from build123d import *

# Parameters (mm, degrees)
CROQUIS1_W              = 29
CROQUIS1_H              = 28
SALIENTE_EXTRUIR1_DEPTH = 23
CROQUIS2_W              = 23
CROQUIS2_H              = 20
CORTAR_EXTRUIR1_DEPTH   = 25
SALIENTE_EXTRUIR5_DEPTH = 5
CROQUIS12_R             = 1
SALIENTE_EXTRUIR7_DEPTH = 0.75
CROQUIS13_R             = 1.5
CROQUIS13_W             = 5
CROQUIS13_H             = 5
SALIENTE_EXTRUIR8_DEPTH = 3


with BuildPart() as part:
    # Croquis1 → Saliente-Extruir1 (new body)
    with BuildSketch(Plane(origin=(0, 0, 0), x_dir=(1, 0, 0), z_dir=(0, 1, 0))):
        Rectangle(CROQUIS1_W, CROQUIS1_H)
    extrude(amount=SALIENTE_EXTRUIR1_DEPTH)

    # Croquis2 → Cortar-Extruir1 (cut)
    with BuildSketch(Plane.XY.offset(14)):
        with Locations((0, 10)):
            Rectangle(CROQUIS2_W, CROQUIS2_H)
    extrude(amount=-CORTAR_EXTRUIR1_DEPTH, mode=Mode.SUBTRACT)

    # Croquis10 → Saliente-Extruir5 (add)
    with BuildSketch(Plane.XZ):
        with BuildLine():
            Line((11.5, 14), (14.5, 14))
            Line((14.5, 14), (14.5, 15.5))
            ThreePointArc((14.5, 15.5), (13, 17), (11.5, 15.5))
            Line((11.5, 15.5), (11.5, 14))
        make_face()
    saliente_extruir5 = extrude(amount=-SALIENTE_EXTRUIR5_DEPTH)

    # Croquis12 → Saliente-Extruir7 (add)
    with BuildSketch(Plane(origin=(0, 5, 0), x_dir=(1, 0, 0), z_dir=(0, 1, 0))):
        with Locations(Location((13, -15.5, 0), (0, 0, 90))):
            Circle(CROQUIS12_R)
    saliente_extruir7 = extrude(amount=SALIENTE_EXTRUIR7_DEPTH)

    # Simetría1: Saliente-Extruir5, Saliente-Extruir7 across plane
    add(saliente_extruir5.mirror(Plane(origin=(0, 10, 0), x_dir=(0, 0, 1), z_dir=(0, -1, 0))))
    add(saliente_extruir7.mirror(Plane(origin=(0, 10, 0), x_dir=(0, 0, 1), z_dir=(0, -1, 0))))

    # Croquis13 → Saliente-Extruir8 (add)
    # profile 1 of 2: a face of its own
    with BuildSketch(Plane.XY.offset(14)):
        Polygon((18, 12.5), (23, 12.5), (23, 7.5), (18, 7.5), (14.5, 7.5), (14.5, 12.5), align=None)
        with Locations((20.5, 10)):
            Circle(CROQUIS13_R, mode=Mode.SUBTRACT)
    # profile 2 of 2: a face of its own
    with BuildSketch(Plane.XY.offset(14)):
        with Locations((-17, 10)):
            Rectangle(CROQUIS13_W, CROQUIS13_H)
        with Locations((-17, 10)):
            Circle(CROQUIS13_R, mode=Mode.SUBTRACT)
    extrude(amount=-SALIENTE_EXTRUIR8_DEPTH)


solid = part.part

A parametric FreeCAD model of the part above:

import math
import FreeCAD as App
import Part
import Sketcher


def add_polygon(sketch, points):
    """Adds a closed chain of lines whose ends are joined by coincident constraints."""
    first, n = sketch.GeometryCount, len(points)
    for a, b in zip(points, points[1:] + points[:1]):
        sketch.addGeometry(Part.LineSegment(App.Vector(*a, 0), App.Vector(*b, 0)), False)
    for i in range(n):
        sketch.addConstraint(Sketcher.Constraint("Coincident", first + i, 2, first + (i + 1) % n, 1))

doc = App.newDocument("Part")
params = doc.addObject("Spreadsheet::Sheet", "Params")
for row, (alias, value) in enumerate([
    ("sketch1_width", "29 mm"),
    ("sketch1_height", "28 mm"),
    ("pad1_length", "23 mm"),
    ("sketch2_width", "23 mm"),
    ("sketch2_height", "20 mm"),
    ("pocket1_length", "25 mm"),
    ("sketch3_radius", "1.5 mm"),
    ("sketch3_height", "1.5 mm"),
    ("pad2_length", "5 mm"),
    ("sketch4_diameter", "2 mm"),
    ("pad3_length", "0.75 mm"),
    ("sketch5_diameter", "3 mm"),
    ("sketch5_width", "5 mm"),
    ("sketch5_width2", "8.5 mm"),
    ("pad4_length", "3 mm"),
], start=1):
    params.set(f"A{row}", alias)
    params.set(f"B{row}", "=" + value)
    params.setAlias(f"B{row}", alias)

body = doc.addObject("PartDesign::Body", "Body")

sketch1 = doc.addObject("Sketcher::SketchObject", "Sketch")
body.addObject(sketch1)
sketch1.AttachmentSupport = (doc.XZ_Plane, [""])
sketch1.MapMode = "FlatFace"
add_polygon(sketch1, [(-14, -14), (-14, 14), (14, 14), (14, -14)])
sketch1.addConstraint([
    Sketcher.Constraint("Vertical", 0),
    Sketcher.Constraint("Horizontal", 1),
    Sketcher.Constraint("Vertical", 2),
    Sketcher.Constraint("Horizontal", 3),
    Sketcher.Constraint("Symmetric", 0, 2, 2, 2, -1, 1),
    Sketcher.Constraint("DistanceX", 1, 1, 1, 2, 29.0),
    Sketcher.Constraint("DistanceY", 0, 1, 0, 2, 28.0),
])
sketch1.setExpression("Constraints[9]", "Params.sketch1_width")
sketch1.setExpression("Constraints[10]", "Params.sketch1_height")
pad1 = doc.addObject("PartDesign::Pad", "Pad")
body.addObject(pad1)
pad1.Profile = sketch1
pad1.setExpression("Length", "Params.pad1_length")
pad1.Reversed = True

sketch2 = doc.addObject("Sketcher::SketchObject", "Sketch001")
body.addObject(sketch2)
sketch2.AttachmentSupport = (doc.XY_Plane, [""])
sketch2.MapMode = "FlatFace"
sketch2.AttachmentOffset = App.Placement(App.Vector(0, 0, 14), App.Rotation())
add_polygon(sketch2, [(-12, 20), (-12, 0), (12, 0), (12, 20)])
sketch2.addConstraint([
    Sketcher.Constraint("Vertical", 0),
    Sketcher.Constraint("Horizontal", 1),
    Sketcher.Constraint("Vertical", 2),
    Sketcher.Constraint("Horizontal", 3),
    Sketcher.Constraint("Symmetric", 0, 2, 1, 2, -1, 1),
    Sketcher.Constraint("DistanceX", 1, 1, 1, 2, 23.0),
    Sketcher.Constraint("DistanceY", 0, 2, 0, 1, 20.0),
])
sketch2.setExpression("Constraints[9]", "Params.sketch2_width")
sketch2.setExpression("Constraints[10]", "Params.sketch2_height")
pocket1 = doc.addObject("PartDesign::Pocket", "Pocket")
body.addObject(pocket1)
pocket1.Profile = sketch2
pocket1.setExpression("Length", "Params.pocket1_length")

sketch3 = doc.addObject("Sketcher::SketchObject", "Sketch002")
body.addObject(sketch3)
sketch3.AttachmentSupport = (doc.XZ_Plane, [""])
sketch3.MapMode = "FlatFace"
sketch3.addGeometry([
    Part.LineSegment(App.Vector(11.5, 14, 0), App.Vector(14.5, 14, 0)),
    Part.LineSegment(App.Vector(14.5, 14, 0), App.Vector(14.5, 15.5, 0)),
    Part.ArcOfCircle(Part.Circle(App.Vector(13, 15.5, 0), App.Vector(0, 0, 1), 1.5), math.radians(0), math.radians(180)),
    Part.LineSegment(App.Vector(11.5, 15.5, 0), App.Vector(11.5, 14, 0)),
], False)
sketch3.addConstraint([
    Sketcher.Constraint("Coincident", 0, 2, 1, 1),
    Sketcher.Constraint("Tangent", 1, 2, 2, 1),
    Sketcher.Constraint("Tangent", 2, 2, 3, 1),
    Sketcher.Constraint("Coincident", 3, 2, 0, 1),
    Sketcher.Constraint("Horizontal", 0),
    Sketcher.Constraint("Vertical", 1),
    Sketcher.Constraint("Vertical", 3),
    Sketcher.Constraint("Radius", 2, 1.5),
    Sketcher.Constraint("DistanceY", 1, 1, 1, 2, 1.5),
    Sketcher.Constraint("DistanceX", -1, 1, 2, 3, 13.0),
    Sketcher.Constraint("DistanceY", -1, 1, 0, 2, 14.0),
])
sketch3.setExpression("Constraints[7]", "Params.sketch3_radius")
sketch3.setExpression("Constraints[8]", "Params.sketch3_height")
pad2 = doc.addObject("PartDesign::Pad", "Pad001")
body.addObject(pad2)
pad2.Profile = sketch3
pad2.setExpression("Length", "Params.pad2_length")
pad2.Reversed = True

sketch4 = doc.addObject("Sketcher::SketchObject", "Sketch003")
body.addObject(sketch4)
sketch4.AttachmentSupport = (doc.XZ_Plane, [""])
sketch4.MapMode = "FlatFace"
sketch4.AttachmentOffset = App.Placement(App.Vector(0, 0, -5), App.Rotation())
sketch4.addGeometry(Part.Circle(App.Vector(13, 15.5, 0), App.Vector(0, 0, 1), 1), False)
sketch4.addConstraint([
    Sketcher.Constraint("Diameter", 0, 2.0),
    Sketcher.Constraint("DistanceX", -1, 1, 0, 3, 13.0),
    Sketcher.Constraint("DistanceY", -1, 1, 0, 3, 15.5),
])
sketch4.setExpression("Constraints[0]", "Params.sketch4_diameter")
pad3 = doc.addObject("PartDesign::Pad", "Pad002")
body.addObject(pad3)
pad3.Profile = sketch4
pad3.setExpression("Length", "Params.pad3_length")
pad3.Reversed = True
doc.recompute()

datumplane = doc.addObject("PartDesign::Plane", "DatumPlane")
body.addObject(datumplane)
datumplane.AttachmentSupport = (doc.XZ_Plane, [""])
datumplane.MapMode = "FlatFace"
datumplane.AttachmentOffset = App.Placement(App.Vector(0, 0, -10), App.Rotation())
mirrored = doc.addObject("PartDesign::Mirrored", "Mirrored")
body.addObject(mirrored)
mirrored.Originals = [pad2, pad3]
mirrored.MirrorPlane = (datumplane, [""])
body.Tip = mirrored

sketch5 = doc.addObject("Sketcher::SketchObject", "Sketch004")
body.addObject(sketch5)
sketch5.AttachmentSupport = (doc.XY_Plane, [""])
sketch5.MapMode = "FlatFace"
sketch5.AttachmentOffset = App.Placement(App.Vector(0, 0, 14), App.Rotation())
add_polygon(sketch5, [(23, 12.5), (14.5, 12.5), (14.5, 7.5), (23, 7.5)])
sketch5.addGeometry(Part.Circle(App.Vector(20.5, 10, 0), App.Vector(0, 0, 1), 1.5), False)
add_polygon(sketch5, [(-19.5, 12.5), (-19.5, 7.5), (-14.5, 7.5), (-14.5, 12.5)])
sketch5.addGeometry(Part.Circle(App.Vector(-17, 10, 0), App.Vector(0, 0, 1), 1.5), False)
sketch5.addConstraint([
    Sketcher.Constraint("Horizontal", 0),
    Sketcher.Constraint("Vertical", 1),
    Sketcher.Constraint("Horizontal", 2),
    Sketcher.Constraint("Vertical", 3),
    Sketcher.Constraint("Vertical", 5),
    Sketcher.Constraint("Horizontal", 6),
    Sketcher.Constraint("Vertical", 7),
    Sketcher.Constraint("Horizontal", 8),
    Sketcher.Constraint("Equal", 4, 9),
    Sketcher.Constraint("Symmetric", 1, 2, 6, 2, -2),
    Sketcher.Constraint("Horizontal", 4, 3, 9, 3),
    Sketcher.Constraint("Horizontal", 3, 2, 7, 2),
    Sketcher.Constraint("Equal", 8, 1),
    Sketcher.Constraint("Diameter", 4, 3.0),
    Sketcher.Constraint("DistanceX", 6, 1, 6, 2, 5.0),
    Sketcher.Constraint("DistanceX", 0, 2, 0, 1, 8.5),
    Sketcher.Constraint("DistanceY", -1, 1, 4, 3, 10.0),
    Sketcher.Constraint("DistanceX", 9, 3, -1, 1, 17.0),
    Sketcher.Constraint("DistanceX", -1, 1, 2, 2, 23.0),
    Sketcher.Constraint("DistanceX", 0, 2, 4, 3, 6.0),
    Sketcher.Constraint("DistanceY", -1, 1, 0, 2, 12.5),
])
sketch5.setExpression("Constraints[21]", "Params.sketch5_diameter")
sketch5.setExpression("Constraints[22]", "Params.sketch5_width")
sketch5.setExpression("Constraints[23]", "Params.sketch5_width2")
pad4 = doc.addObject("PartDesign::Pad", "Pad003")
body.addObject(pad4)
pad4.Profile = sketch5
pad4.setExpression("Length", "Params.pad4_length")
pad4.Reversed = True

doc.recompute()
